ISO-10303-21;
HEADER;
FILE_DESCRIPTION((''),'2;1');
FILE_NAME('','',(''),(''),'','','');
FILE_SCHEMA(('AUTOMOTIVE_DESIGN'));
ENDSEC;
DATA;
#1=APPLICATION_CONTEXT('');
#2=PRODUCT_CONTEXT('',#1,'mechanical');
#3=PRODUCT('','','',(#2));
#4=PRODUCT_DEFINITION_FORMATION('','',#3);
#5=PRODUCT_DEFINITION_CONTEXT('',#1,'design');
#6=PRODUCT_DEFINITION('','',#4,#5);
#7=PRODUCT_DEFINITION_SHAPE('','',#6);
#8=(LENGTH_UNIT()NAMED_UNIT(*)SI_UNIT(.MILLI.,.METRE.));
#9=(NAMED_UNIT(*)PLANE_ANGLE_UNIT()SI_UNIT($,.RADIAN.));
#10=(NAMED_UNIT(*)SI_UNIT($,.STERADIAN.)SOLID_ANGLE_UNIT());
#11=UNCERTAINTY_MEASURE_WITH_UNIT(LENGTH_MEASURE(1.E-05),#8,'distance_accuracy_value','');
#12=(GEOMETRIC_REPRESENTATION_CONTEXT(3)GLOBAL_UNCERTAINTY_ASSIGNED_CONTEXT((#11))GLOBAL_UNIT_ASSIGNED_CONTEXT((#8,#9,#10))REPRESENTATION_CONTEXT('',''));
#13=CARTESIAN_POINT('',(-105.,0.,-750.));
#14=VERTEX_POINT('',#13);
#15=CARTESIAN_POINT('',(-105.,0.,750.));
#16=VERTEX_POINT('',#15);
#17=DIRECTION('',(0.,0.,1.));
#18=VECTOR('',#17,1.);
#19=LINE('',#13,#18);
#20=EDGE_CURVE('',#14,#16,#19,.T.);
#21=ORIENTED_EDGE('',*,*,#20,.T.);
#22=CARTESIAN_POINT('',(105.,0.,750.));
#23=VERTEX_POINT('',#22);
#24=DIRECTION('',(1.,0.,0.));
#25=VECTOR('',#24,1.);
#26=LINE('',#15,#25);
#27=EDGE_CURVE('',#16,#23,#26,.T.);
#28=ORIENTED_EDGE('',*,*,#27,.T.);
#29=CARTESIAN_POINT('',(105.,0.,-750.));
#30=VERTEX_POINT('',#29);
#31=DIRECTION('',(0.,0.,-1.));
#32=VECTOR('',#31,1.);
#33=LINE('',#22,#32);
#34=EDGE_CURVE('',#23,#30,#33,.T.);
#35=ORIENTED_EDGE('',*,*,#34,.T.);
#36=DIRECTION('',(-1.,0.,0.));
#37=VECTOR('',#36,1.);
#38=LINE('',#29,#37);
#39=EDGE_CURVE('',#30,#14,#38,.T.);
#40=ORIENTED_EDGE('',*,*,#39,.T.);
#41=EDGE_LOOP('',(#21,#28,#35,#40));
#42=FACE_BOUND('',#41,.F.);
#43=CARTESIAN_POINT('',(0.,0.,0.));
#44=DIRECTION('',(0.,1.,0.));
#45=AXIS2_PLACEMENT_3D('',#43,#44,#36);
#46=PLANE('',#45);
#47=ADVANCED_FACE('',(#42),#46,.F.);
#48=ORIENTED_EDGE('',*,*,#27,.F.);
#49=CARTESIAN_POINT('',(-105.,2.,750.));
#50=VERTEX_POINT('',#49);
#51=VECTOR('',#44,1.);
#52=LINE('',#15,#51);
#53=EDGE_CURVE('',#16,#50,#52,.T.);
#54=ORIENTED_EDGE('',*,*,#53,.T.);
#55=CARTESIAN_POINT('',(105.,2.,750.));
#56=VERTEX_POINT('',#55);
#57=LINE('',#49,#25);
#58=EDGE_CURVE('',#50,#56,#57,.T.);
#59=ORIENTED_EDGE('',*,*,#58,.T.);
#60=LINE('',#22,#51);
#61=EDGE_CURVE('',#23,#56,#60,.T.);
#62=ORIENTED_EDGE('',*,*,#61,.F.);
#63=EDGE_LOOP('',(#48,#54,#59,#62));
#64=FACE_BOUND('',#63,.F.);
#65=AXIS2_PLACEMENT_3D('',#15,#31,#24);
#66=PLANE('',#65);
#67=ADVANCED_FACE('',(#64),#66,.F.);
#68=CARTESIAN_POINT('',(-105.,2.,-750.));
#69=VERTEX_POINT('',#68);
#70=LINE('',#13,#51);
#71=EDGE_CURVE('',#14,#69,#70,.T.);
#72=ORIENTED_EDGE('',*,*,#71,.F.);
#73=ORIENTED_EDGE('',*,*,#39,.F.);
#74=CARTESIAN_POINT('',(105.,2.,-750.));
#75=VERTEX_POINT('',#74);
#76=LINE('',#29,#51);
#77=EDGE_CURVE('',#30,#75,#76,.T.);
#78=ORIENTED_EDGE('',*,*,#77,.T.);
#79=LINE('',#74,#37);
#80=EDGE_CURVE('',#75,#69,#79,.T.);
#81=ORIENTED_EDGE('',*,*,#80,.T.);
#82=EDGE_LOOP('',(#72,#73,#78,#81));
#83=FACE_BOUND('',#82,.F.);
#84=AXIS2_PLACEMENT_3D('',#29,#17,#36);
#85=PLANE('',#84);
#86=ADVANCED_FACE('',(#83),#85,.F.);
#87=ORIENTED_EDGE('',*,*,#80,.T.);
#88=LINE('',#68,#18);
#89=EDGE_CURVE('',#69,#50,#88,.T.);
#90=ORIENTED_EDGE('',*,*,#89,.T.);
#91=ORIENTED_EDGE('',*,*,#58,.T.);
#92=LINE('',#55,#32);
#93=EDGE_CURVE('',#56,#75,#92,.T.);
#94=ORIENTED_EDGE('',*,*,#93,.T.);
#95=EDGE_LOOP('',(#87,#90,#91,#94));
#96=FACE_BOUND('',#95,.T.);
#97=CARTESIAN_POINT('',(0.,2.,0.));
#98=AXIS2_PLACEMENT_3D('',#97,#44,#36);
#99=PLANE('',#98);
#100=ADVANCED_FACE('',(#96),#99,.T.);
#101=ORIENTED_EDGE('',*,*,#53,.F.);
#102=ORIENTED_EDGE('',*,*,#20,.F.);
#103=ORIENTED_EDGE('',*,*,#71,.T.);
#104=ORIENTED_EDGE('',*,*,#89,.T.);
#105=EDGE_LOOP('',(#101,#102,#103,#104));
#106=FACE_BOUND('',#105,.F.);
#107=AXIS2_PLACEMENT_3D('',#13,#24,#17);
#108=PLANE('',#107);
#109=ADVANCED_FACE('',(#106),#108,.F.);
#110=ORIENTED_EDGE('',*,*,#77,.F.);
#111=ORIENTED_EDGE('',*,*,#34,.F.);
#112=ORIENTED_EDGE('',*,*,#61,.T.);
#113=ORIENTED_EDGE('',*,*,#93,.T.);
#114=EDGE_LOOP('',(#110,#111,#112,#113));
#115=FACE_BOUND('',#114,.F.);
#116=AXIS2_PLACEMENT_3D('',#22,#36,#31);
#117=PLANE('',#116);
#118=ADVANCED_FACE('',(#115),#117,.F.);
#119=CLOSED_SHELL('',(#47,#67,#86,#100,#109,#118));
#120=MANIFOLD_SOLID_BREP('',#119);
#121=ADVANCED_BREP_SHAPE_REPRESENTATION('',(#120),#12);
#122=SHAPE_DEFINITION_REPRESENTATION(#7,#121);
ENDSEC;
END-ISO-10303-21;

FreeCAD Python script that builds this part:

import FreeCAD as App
import Part
import Sketcher

doc = App.newDocument("Part")
body = doc.addObject("PartDesign::Body", "Body")

sketch1 = body.newObject("Sketcher::SketchObject", "Sketch")
sketch1.AttachmentSupport = (doc.getObject("XZ_Plane"), [""])
sketch1.MapMode = "FlatFace"
sketch1.addGeometry(Part.LineSegment(App.Vector(105, 750, 0), App.Vector(105, -750, 0)), False)
sketch1.addGeometry(Part.LineSegment(App.Vector(105, -750, 0), App.Vector(-105, -750, 0)), False)
sketch1.addGeometry(Part.LineSegment(App.Vector(-105, -750, 0), App.Vector(-105, 750, 0)), False)
sketch1.addGeometry(Part.LineSegment(App.Vector(-105, 750, 0), App.Vector(105, 750, 0)), False)
sketch1.addConstraint(Sketcher.Constraint("Coincident", 0, 2, 1, 1))
sketch1.addConstraint(Sketcher.Constraint("Coincident", 1, 2, 2, 1))
sketch1.addConstraint(Sketcher.Constraint("Coincident", 2, 2, 3, 1))
sketch1.addConstraint(Sketcher.Constraint("Coincident", 3, 2, 0, 1))
sketch1.addConstraint(Sketcher.Constraint("Vertical", 0))
sketch1.addConstraint(Sketcher.Constraint("Horizontal", 1))
sketch1.addConstraint(Sketcher.Constraint("Vertical", 2))
sketch1.addConstraint(Sketcher.Constraint("Horizontal", 3))
sketch1.addConstraint(Sketcher.Constraint("Symmetric", 0, 2, 2, 2, -1, 1))
sketch1.addConstraint(Sketcher.Constraint("DistanceX", 1, 2, 1, 1, 210.0))
sketch1.addConstraint(Sketcher.Constraint("DistanceY", 0, 2, 0, 1, 1500.0))
pad1 = body.newObject("PartDesign::Pad", "Pad")
pad1.Profile = sketch1
pad1.Length = 2
pad1.Reversed = True

doc.recompute()
